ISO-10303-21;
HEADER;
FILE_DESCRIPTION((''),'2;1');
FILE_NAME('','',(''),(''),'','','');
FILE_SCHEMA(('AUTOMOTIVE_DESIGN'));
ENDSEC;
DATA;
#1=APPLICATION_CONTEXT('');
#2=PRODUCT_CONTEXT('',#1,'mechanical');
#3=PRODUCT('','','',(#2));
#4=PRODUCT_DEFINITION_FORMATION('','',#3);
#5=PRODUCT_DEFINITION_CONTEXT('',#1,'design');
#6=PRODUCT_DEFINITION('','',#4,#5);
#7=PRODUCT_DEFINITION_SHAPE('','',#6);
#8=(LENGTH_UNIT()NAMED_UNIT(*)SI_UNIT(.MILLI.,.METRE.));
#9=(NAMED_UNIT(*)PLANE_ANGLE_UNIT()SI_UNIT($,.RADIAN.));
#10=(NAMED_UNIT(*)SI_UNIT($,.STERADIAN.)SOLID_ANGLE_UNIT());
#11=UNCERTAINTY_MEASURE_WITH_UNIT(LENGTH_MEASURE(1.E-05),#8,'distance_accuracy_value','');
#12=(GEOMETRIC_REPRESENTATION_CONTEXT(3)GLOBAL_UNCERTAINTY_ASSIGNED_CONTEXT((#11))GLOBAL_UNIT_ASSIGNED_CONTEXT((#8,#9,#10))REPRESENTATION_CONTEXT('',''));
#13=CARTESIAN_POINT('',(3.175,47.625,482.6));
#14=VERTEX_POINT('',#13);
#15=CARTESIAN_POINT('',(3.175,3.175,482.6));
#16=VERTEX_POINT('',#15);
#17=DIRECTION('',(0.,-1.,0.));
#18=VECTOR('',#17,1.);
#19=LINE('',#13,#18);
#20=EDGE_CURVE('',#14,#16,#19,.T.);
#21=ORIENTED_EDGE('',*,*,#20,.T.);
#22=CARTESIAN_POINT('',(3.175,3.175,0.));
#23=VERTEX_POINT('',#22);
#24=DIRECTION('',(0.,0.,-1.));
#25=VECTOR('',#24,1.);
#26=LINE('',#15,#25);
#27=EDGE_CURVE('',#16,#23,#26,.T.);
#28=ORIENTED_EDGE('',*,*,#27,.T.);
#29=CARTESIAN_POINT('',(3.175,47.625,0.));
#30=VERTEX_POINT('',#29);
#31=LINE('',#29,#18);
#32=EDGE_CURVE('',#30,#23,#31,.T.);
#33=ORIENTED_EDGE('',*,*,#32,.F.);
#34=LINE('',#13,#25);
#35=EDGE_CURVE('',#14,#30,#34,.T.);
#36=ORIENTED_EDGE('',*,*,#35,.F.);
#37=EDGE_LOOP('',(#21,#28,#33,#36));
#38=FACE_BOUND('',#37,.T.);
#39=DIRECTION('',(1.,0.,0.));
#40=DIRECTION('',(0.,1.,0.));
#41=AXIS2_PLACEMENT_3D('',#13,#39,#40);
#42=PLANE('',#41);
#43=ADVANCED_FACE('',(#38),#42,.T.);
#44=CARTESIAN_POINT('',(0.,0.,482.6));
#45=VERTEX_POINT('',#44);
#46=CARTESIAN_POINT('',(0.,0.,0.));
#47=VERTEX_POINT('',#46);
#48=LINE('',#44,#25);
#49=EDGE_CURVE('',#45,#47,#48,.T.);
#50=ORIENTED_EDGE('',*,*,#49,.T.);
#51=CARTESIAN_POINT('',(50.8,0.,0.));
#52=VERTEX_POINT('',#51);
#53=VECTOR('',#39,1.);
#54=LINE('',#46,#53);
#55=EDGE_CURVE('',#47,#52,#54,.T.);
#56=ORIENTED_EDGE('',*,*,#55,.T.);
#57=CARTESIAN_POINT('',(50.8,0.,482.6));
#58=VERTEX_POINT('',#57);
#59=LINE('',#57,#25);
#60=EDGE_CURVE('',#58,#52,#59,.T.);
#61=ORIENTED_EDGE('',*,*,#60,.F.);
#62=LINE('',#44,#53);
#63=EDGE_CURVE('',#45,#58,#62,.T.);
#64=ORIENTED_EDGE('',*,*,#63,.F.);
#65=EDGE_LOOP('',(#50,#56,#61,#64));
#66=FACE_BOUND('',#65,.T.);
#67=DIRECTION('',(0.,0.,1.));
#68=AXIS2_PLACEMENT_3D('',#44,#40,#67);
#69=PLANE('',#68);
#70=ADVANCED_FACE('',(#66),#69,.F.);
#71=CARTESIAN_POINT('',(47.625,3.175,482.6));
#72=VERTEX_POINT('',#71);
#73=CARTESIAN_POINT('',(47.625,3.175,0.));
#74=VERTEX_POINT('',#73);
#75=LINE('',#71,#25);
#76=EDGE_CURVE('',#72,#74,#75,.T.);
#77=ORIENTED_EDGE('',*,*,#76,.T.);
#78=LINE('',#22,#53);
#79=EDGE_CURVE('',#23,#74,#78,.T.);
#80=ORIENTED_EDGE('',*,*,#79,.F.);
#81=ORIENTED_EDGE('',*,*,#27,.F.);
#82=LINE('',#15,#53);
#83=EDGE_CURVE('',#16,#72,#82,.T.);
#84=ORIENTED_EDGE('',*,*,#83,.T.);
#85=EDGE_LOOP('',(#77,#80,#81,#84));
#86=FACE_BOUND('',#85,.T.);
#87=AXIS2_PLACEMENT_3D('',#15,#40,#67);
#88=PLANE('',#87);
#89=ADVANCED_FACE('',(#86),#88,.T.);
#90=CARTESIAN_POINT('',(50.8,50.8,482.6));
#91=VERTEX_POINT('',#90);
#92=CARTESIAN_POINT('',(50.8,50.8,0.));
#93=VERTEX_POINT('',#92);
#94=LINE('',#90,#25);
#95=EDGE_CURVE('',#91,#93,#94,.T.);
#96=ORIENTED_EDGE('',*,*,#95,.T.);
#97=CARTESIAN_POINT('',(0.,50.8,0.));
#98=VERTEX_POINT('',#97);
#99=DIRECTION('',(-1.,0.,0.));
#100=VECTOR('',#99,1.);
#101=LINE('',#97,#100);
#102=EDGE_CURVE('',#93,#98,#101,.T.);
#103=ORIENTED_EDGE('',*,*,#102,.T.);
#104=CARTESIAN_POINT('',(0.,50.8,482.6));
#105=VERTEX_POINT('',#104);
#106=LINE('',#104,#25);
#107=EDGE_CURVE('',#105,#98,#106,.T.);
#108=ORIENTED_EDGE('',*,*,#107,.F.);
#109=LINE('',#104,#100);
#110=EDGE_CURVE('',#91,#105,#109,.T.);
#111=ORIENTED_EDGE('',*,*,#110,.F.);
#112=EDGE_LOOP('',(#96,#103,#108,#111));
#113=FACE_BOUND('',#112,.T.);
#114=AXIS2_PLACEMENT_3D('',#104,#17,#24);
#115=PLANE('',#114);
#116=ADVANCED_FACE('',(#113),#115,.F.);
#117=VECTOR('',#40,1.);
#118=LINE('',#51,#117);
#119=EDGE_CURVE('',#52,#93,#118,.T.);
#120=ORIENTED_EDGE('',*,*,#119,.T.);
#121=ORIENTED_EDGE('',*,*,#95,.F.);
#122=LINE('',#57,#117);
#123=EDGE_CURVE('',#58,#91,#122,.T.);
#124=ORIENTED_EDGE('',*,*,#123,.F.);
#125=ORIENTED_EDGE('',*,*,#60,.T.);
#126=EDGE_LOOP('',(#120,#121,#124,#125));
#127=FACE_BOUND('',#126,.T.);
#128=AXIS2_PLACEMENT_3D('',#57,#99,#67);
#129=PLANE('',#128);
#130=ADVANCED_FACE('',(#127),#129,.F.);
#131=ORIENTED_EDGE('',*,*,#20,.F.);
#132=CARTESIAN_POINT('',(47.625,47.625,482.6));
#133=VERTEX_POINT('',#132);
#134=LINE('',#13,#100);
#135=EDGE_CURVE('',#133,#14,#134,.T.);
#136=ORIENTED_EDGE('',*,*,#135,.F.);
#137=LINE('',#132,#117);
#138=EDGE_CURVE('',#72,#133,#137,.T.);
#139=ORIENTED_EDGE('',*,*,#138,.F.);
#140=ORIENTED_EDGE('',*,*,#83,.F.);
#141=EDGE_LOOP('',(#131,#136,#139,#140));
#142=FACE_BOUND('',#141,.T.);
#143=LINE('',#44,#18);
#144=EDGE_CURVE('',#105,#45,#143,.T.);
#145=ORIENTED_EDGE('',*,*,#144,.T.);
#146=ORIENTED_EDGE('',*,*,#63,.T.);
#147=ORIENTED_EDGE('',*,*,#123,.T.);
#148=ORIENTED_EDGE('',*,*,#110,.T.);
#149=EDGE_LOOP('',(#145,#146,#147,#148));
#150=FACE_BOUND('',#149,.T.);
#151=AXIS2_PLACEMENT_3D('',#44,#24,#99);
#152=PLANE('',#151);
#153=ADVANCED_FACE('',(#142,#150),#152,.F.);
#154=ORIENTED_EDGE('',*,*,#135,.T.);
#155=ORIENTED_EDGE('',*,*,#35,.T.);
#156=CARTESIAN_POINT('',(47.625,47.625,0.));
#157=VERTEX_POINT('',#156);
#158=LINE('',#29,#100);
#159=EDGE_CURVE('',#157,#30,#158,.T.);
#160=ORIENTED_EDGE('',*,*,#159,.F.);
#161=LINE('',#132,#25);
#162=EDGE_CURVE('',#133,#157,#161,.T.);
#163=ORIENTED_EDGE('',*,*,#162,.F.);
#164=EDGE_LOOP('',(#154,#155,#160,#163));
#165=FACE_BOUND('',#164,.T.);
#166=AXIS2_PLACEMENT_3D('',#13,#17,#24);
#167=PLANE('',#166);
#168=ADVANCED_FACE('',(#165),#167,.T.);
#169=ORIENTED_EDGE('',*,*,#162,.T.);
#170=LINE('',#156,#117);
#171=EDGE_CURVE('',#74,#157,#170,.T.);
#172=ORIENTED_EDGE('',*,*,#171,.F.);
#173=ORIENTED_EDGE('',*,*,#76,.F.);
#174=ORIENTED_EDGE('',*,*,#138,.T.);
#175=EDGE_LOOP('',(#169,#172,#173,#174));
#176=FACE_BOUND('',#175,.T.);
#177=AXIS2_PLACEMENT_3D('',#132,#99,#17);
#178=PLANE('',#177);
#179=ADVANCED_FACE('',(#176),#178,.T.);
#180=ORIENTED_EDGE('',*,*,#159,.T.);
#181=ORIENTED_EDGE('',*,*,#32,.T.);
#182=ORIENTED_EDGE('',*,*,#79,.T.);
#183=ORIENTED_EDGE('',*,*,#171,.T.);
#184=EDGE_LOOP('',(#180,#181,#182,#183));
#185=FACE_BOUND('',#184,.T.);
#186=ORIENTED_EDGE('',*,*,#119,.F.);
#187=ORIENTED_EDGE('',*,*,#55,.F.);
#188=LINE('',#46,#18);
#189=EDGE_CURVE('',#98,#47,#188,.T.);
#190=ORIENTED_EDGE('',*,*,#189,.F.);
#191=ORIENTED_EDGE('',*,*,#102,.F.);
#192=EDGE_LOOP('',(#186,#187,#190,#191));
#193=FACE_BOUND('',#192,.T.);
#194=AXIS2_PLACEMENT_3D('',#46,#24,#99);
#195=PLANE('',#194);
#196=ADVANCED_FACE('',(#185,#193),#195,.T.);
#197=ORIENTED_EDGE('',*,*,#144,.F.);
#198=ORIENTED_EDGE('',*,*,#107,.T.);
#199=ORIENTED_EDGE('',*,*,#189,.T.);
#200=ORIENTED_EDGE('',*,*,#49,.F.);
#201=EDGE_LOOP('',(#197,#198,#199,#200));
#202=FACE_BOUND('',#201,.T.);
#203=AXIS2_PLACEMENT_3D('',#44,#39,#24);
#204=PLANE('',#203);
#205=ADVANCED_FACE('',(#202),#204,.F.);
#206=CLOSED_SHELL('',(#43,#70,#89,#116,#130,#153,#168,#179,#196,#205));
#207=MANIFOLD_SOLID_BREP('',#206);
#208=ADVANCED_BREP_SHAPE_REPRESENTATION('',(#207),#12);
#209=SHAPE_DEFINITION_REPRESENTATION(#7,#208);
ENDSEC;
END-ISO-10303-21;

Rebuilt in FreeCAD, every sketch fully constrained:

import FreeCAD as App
import Part
import Sketcher

V = App.Vector
Q = App.Units.Quantity


def add_polygon(sketch, points):
    """Adds a closed chain of lines whose ends are joined by coincident constraints."""
    first, n = sketch.GeometryCount, len(points)
    for a, b in zip(points, points[1:] + points[:1]):
        sketch.addGeometry(Part.LineSegment(App.Vector(*a, 0), App.Vector(*b, 0)), False)
    for i in range(n):
        sketch.addConstraint(Sketcher.Constraint("Coincident", first + i, 2, first + (i + 1) % n, 1))

doc = App.newDocument("Part")
body = doc.addObject("PartDesign::Body", "Body")

sketch1 = body.newObject("Sketcher::SketchObject", "Sketch")
sketch1.AttachmentSupport = (doc.getObject("XY_Plane"), [""])
sketch1.MapMode = "FlatFace"
add_polygon(sketch1, [(0, 51), (0, 0), (51, 0), (51, 51)])
add_polygon(sketch1, [(48, 3), (3, 3), (3, 48), (48, 48)])
sketch1.addConstraint(Sketcher.Constraint("Vertical", 0))
sketch1.addConstraint(Sketcher.Constraint("Horizontal", 1))
sketch1.addConstraint(Sketcher.Constraint("Vertical", 2))
sketch1.addConstraint(Sketcher.Constraint("Horizontal", 3))
sketch1.addConstraint(Sketcher.Constraint("Horizontal", 4))
sketch1.addConstraint(Sketcher.Constraint("Vertical", 5))
sketch1.addConstraint(Sketcher.Constraint("Horizontal", 6))
sketch1.addConstraint(Sketcher.Constraint("Vertical", 7))
sketch1.addConstraint(Sketcher.Constraint("Coincident", 0, 2, -1, 1))
sketch1.addConstraint(Sketcher.Constraint("Equal", 3, 0))
sketch1.addConstraint(Sketcher.Constraint("Equal", 6, 5))
sketch1.addConstraint(Sketcher.Constraint("DistanceX", 1, 1, 1, 2, Q("2 in")))
sketch1.addConstraint(Sketcher.Constraint("DistanceX", 4, 2, 4, 1, Q("1.75 in")))
sketch1.addConstraint(Sketcher.Constraint("DistanceX", -1, 1, 4, 2, Q("0.125 in")))
sketch1.addConstraint(Sketcher.Constraint("DistanceY", -1, 1, 4, 2, Q("0.125 in")))
pad1 = body.newObject("PartDesign::Pad", "Pad")
pad1.Profile = sketch1
pad1.Length = Q("19 in")

doc.recompute()
